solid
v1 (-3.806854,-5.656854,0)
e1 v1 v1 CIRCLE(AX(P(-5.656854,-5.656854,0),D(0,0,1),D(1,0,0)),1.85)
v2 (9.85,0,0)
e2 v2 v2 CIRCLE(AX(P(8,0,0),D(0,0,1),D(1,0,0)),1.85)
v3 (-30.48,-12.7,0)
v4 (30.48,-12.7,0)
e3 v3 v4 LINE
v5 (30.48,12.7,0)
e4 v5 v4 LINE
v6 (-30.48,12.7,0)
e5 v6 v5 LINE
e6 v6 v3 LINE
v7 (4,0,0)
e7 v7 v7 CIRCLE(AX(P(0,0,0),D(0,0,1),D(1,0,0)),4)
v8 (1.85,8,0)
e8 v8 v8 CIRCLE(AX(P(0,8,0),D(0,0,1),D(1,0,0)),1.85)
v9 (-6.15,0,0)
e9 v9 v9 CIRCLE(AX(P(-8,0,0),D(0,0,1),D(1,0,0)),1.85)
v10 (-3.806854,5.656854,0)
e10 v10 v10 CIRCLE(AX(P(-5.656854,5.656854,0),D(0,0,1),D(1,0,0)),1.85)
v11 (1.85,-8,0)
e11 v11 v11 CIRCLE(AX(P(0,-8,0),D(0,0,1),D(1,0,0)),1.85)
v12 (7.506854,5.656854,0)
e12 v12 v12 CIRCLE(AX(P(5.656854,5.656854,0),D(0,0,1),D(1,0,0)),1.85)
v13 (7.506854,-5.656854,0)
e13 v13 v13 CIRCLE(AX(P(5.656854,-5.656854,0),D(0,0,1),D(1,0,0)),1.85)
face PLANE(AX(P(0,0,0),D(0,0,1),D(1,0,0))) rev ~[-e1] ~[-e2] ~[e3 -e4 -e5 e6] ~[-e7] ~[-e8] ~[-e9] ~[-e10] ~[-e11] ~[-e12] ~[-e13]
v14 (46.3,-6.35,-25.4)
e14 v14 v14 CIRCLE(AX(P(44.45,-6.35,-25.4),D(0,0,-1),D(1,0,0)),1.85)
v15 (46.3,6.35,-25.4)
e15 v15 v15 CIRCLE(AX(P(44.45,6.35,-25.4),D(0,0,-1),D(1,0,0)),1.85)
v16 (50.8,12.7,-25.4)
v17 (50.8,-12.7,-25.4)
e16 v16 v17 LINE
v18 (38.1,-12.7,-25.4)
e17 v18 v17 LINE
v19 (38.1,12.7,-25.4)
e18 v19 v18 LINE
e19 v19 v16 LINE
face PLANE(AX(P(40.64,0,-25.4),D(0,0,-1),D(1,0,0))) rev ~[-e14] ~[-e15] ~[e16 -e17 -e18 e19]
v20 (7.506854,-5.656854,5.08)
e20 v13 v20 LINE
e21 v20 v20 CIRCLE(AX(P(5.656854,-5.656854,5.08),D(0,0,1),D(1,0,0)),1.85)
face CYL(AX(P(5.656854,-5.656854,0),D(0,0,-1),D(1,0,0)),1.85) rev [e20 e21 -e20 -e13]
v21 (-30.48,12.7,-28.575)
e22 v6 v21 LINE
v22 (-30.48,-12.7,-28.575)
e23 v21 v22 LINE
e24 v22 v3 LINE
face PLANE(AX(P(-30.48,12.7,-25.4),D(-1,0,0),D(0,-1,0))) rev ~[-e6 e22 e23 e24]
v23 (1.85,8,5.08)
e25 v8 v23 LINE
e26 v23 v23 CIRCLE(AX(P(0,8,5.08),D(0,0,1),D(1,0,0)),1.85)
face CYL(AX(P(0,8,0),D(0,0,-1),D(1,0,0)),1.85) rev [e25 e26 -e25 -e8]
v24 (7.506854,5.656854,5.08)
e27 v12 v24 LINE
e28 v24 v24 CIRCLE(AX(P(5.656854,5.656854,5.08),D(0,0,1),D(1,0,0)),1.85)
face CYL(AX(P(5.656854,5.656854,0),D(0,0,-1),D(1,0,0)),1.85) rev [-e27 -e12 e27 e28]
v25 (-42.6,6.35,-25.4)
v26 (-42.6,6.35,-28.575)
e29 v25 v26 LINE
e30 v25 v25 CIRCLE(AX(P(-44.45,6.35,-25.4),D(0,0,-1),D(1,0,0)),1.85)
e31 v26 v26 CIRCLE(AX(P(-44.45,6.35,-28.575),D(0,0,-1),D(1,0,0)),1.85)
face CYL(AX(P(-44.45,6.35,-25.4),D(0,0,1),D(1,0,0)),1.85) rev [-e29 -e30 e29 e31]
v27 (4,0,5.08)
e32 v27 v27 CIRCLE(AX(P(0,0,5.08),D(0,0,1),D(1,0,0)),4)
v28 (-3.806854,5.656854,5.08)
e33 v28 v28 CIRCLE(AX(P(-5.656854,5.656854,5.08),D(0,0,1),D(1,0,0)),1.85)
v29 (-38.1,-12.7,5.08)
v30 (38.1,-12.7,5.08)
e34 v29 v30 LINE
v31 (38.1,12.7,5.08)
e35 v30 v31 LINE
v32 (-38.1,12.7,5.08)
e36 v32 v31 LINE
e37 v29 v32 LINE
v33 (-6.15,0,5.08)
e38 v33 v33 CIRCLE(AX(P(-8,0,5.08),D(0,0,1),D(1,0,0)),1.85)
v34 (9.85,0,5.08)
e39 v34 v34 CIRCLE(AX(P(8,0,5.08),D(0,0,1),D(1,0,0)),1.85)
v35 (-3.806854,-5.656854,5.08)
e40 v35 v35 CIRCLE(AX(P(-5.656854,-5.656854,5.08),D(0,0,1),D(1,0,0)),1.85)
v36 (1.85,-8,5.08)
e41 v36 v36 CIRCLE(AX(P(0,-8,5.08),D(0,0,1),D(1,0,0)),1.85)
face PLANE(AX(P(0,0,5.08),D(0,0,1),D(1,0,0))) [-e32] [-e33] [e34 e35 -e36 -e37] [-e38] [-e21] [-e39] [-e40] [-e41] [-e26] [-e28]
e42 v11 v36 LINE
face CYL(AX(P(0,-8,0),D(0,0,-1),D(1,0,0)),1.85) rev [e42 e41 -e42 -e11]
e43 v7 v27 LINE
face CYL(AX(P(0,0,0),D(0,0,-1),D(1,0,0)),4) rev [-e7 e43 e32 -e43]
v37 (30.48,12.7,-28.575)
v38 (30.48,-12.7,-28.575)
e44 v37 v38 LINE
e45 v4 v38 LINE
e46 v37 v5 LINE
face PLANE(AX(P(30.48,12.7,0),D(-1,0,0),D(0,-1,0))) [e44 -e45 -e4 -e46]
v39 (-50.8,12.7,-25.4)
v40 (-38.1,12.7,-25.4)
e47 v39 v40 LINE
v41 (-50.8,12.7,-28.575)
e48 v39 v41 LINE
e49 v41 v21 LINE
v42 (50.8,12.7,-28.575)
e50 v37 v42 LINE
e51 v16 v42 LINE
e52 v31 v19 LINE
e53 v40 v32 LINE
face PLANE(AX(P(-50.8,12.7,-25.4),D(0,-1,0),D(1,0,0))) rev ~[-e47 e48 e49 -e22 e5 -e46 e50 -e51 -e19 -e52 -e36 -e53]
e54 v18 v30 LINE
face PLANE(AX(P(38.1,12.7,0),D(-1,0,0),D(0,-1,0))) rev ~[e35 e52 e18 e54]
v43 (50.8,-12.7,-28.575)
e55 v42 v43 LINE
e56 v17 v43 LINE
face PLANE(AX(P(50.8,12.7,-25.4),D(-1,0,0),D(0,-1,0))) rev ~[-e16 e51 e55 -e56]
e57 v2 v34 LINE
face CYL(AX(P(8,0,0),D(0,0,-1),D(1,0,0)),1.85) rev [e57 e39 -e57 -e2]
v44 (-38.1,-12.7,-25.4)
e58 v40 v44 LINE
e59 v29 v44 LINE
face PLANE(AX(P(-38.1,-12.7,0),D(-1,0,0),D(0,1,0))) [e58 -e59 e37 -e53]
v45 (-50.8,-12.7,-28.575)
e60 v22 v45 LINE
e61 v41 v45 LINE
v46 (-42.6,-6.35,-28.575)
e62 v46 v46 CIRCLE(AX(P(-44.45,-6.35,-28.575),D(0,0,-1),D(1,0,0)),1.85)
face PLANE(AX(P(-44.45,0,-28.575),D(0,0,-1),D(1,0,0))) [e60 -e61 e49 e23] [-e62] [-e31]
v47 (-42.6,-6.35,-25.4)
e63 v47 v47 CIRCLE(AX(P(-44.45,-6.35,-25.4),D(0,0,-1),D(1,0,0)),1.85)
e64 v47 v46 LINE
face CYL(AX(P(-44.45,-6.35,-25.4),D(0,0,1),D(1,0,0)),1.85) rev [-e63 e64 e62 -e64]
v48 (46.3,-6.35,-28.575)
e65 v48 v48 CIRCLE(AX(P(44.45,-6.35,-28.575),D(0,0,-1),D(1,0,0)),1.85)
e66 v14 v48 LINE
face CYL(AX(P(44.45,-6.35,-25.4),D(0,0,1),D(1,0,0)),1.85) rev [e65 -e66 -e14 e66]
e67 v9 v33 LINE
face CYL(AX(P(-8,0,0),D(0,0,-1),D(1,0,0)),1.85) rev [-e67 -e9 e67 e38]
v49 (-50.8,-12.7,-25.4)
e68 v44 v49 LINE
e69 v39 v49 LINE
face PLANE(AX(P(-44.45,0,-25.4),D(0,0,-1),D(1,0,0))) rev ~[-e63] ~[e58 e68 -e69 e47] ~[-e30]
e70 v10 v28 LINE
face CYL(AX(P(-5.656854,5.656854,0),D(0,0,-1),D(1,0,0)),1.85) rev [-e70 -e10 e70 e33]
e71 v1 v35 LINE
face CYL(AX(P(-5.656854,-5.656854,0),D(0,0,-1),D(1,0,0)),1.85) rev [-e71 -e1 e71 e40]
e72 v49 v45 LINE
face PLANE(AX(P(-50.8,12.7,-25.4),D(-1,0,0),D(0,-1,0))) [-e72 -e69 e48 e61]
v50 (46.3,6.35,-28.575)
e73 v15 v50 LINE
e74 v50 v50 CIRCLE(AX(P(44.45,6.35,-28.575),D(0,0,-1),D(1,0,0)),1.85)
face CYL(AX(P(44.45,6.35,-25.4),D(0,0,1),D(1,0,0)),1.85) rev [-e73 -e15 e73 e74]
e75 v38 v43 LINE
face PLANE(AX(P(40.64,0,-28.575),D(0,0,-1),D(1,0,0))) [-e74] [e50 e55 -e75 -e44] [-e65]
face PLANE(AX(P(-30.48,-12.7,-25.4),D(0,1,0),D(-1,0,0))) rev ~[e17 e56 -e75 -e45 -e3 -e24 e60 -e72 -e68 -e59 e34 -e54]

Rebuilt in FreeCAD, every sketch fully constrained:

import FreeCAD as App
import Part
import Sketcher

V = App.Vector
Q = App.Units.Quantity

doc = App.newDocument("Part")
params = doc.addObject("Spreadsheet::Sheet", "Params")
for row, (alias, value) in enumerate([
    ("sketch1_width", "3 in"),
    ("sketch1_height", "1 in"),
    ("pad1_length", "0.2 in"),
    ("sketch2_height", "1 in"),
    ("sketch2_width", "0.3 in"),
    ("pad2_length", "1 in"),
    ("sketch3_height", "1 in"),
    ("sketch3_width", "0.8 in"),
    ("pad3_length", "0.125 in"),
], start=1):
    params.set(f"A{row}", alias)
    params.set(f"B{row}", "=" + value)
    params.setAlias(f"B{row}", alias)

body = doc.addObject("PartDesign::Body", "Body")

sketch1 = doc.addObject("Sketcher::SketchObject", "Sketch")
body.addObject(sketch1)
sketch1.AttachmentSupport = (doc.XY_Plane, [""])
sketch1.MapMode = "FlatFace"
sketch1.addGeometry([
    Part.LineSegment(V(-38.1, 12.7, 0), V(-38.1, -12.7, 0)),
    Part.LineSegment(V(-38.1, -12.7, 0), V(38.1, -12.7, 0)),
    Part.LineSegment(V(38.1, -12.7, 0), V(38.1, 12.7, 0)),
    Part.LineSegment(V(38.1, 12.7, 0), V(-38.1, 12.7, 0)),
    Part.Circle(V(-5.7, -5.7, 0), V(0, 0, 1), 1.9),
    Part.Circle(V(0, -8, 0), V(0, 0, 1), 1.9),
    Part.Circle(V(5.7, -5.7, 0), V(0, 0, 1), 1.9),
    Part.Circle(V(-8, 0, 0), V(0, 0, 1), 1.9),
    Part.Circle(V(-5.7, 5.7, 0), V(0, 0, 1), 1.9),
    Part.Circle(V(0, 0, 0), V(0, 0, 1), 4),
    Part.Circle(V(8, 0, 0), V(0, 0, 1), 1.9),
    Part.Circle(V(0, 8, 0), V(0, 0, 1), 1.9),
    Part.Circle(V(5.7, 5.7, 0), V(0, 0, 1), 1.9),
], False)
sketch1.addConstraint([
    Sketcher.Constraint("Coincident", 0, 2, 1, 1),
    Sketcher.Constraint("Coincident", 1, 2, 2, 1),
    Sketcher.Constraint("Coincident", 2, 2, 3, 1),
    Sketcher.Constraint("Coincident", 3, 2, 0, 1),
    Sketcher.Constraint("Vertical", 0),
    Sketcher.Constraint("Horizontal", 1),
    Sketcher.Constraint("Vertical", 2),
    Sketcher.Constraint("Horizontal", 3),
    Sketcher.Constraint("Coincident", 9, 3, -1, 1),
    Sketcher.Constraint("Equal", 4, 5),
    Sketcher.Constraint("Equal", 5, 6),
    Sketcher.Constraint("Equal", 6, 7),
    Sketcher.Constraint("Equal", 7, 8),
    Sketcher.Constraint("Equal", 8, 10),
    Sketcher.Constraint("Equal", 10, 11),
    Sketcher.Constraint("Equal", 11, 12),
    Sketcher.Constraint("Symmetric", 6, 3, 8, 3, -1, 1),
    Sketcher.Constraint("Symmetric", 7, 3, 10, 3, -1, 1),
    Sketcher.Constraint("Symmetric", 5, 3, 11, 3, -1, 1),
    Sketcher.Constraint("Symmetric", 4, 3, 12, 3, -1, 1),
    Sketcher.Constraint("Symmetric", 0, 2, 2, 2, -1, 1),
    Sketcher.Constraint("Symmetric", 4, 3, 6, 3, -2),
    Sketcher.Constraint("PointOnObject", 5, 3, -2),
    Sketcher.Constraint("PointOnObject", 7, 3, -1),
    Sketcher.Constraint("DistanceX", 1, 1, 1, 2, Q("3 in")),
    Sketcher.Constraint("DistanceY", 0, 2, 0, 1, Q("1 in")),
    Sketcher.Constraint("Diameter", 4, Q("3.7 mm")),
    Sketcher.Constraint("Diameter", 9, Q("8 mm")),
    Sketcher.Constraint("DistanceY", 5, 3, -1, 1, Q("8 mm")),
    Sketcher.Constraint("DistanceX", 7, 3, -1, 1, Q("8 mm")),
    Sketcher.Constraint("DistanceX", 4, 3, -1, 1, Q("5.656854 mm")),
    Sketcher.Constraint("DistanceY", 4, 3, -1, 1, Q("5.656854 mm")),
])
sketch1.setExpression("Constraints[24]", "Params.sketch1_width")
sketch1.setExpression("Constraints[25]", "Params.sketch1_height")
pad1 = doc.addObject("PartDesign::Pad", "Pad")
body.addObject(pad1)
pad1.Profile = sketch1
pad1.setExpression("Length", "Params.pad1_length")

sketch2 = doc.addObject("Sketcher::SketchObject", "Sketch001")
body.addObject(sketch2)
sketch2.AttachmentSupport = (doc.XY_Plane, [""])
sketch2.MapMode = "FlatFace"
sketch2.addGeometry([
    Part.LineSegment(V(30, -13, 0), V(30, 13, 0)),
    Part.LineSegment(V(30, 13, 0), V(38, 13, 0)),
    Part.LineSegment(V(38, 13, 0), V(38, -13, 0)),
    Part.LineSegment(V(38, -13, 0), V(30, -13, 0)),
    Part.LineSegment(V(-38, -13, 0), V(-38, 13, 0)),
    Part.LineSegment(V(-38, 13, 0), V(-30, 13, 0)),
    Part.LineSegment(V(-30, 13, 0), V(-30, -13, 0)),
    Part.LineSegment(V(-30, -13, 0), V(-38, -13, 0)),
], False)
sketch2.addConstraint([
    Sketcher.Constraint("Coincident", 0, 2, 1, 1),
    Sketcher.Constraint("Coincident", 1, 2, 2, 1),
    Sketcher.Constraint("Coincident", 2, 2, 3, 1),
    Sketcher.Constraint("Coincident", 3, 2, 0, 1),
    Sketcher.Constraint("Coincident", 4, 2, 5, 1),
    Sketcher.Constraint("Coincident", 5, 2, 6, 1),
    Sketcher.Constraint("Coincident", 6, 2, 7, 1),
    Sketcher.Constraint("Coincident", 7, 2, 4, 1),
    Sketcher.Constraint("Vertical", 0),
    Sketcher.Constraint("Horizontal", 1),
    Sketcher.Constraint("Vertical", 2),
    Sketcher.Constraint("Horizontal", 3),
    Sketcher.Constraint("Vertical", 4),
    Sketcher.Constraint("Horizontal", 5),
    Sketcher.Constraint("Vertical", 6),
    Sketcher.Constraint("Horizontal", 7),
    Sketcher.Constraint("Symmetric", 2, 2, 4, 2, -1, 1),
    Sketcher.Constraint("Symmetric", 0, 2, 6, 2, -1, 1),
    Sketcher.Constraint("Horizontal", 1, 2, 4, 2),
    Sketcher.Constraint("DistanceY", 0, 1, 0, 2, Q("1 in")),
    Sketcher.Constraint("DistanceX", 1, 1, 1, 2, Q("0.3 in")),
    Sketcher.Constraint("DistanceX", 4, 2, 1, 2, Q("3 in")),
])
sketch2.setExpression("Constraints[19]", "Params.sketch2_height")
sketch2.setExpression("Constraints[20]", "Params.sketch2_width")
pad2 = doc.addObject("PartDesign::Pad", "Pad001")
body.addObject(pad2)
pad2.Profile = sketch2
pad2.setExpression("Length", "Params.pad2_length")
pad2.Reversed = True

sketch3 = doc.addObject("Sketcher::SketchObject", "Sketch002")
body.addObject(sketch3)
sketch3.AttachmentSupport = (doc.XY_Plane, [""])
sketch3.MapMode = "FlatFace"
sketch3.AttachmentOffset = App.Placement(V(0, 0, -1 * 25.4), App.Rotation())
sketch3.addGeometry([
    Part.LineSegment(V(-50.8, -12.7, 0), V(-50.8, 12.7, 0)),
    Part.LineSegment(V(-50.8, 12.7, 0), V(-30.5, 12.7, 0)),
    Part.LineSegment(V(-30.5, 12.7, 0), V(-30.5, -12.7, 0)),
    Part.LineSegment(V(-30.5, -12.7, 0), V(-50.8, -12.7, 0)),
    Part.Circle(V(-44.5, 6.3, 0), V(0, 0, 1), 1.9),
    Part.Circle(V(-44.5, -6.3, 0), V(0, 0, 1), 1.9),
    Part.LineSegment(V(30.5, -12.7, 0), V(30.5, 12.7, 0)),
    Part.LineSegment(V(30.5, 12.7, 0), V(50.8, 12.7, 0)),
    Part.LineSegment(V(50.8, 12.7, 0), V(50.8, -12.7, 0)),
    Part.LineSegment(V(50.8, -12.7, 0), V(30.5, -12.7, 0)),
    Part.Circle(V(44.5, 6.3, 0), V(0, 0, 1), 1.9),
    Part.Circle(V(44.5, -6.3, 0), V(0, 0, 1), 1.9),
], False)
sketch3.addConstraint([
    Sketcher.Constraint("Coincident", 0, 2, 1, 1),
    Sketcher.Constraint("Coincident", 1, 2, 2, 1),
    Sketcher.Constraint("Coincident", 2, 2, 3, 1),
    Sketcher.Constraint("Coincident", 3, 2, 0, 1),
    Sketcher.Constraint("Coincident", 6, 2, 7, 1),
    Sketcher.Constraint("Coincident", 7, 2, 8, 1),
    Sketcher.Constraint("Coincident", 8, 2, 9, 1),
    Sketcher.Constraint("Coincident", 9, 2, 6, 1),
    Sketcher.Constraint("Vertical", 0),
    Sketcher.Constraint("Horizontal", 1),
    Sketcher.Constraint("Vertical", 2),
    Sketcher.Constraint("Horizontal", 3),
    Sketcher.Constraint("Vertical", 6),
    Sketcher.Constraint("Horizontal", 7),
    Sketcher.Constraint("Vertical", 8),
    Sketcher.Constraint("Horizontal", 9),
    Sketcher.Constraint("Equal", 4, 5),
    Sketcher.Constraint("Equal", 5, 10),
    Sketcher.Constraint("Equal", 10, 11),
    Sketcher.Constraint("Symmetric", 5, 3, 10, 3, -1, 1),
    Sketcher.Constraint("Symmetric", 4, 3, 11, 3, -1, 1),
    Sketcher.Constraint("Symmetric", 2, 2, 6, 2, -1, 1),
    Sketcher.Constraint("Symmetric", 0, 2, 8, 2, -1, 1),
    Sketcher.Constraint("Symmetric", 4, 3, 10, 3, -2),
    Sketcher.Constraint("Horizontal", 1, 2, 6, 2),
    Sketcher.Constraint("DistanceY", 0, 1, 0, 2, Q("1 in")),
    Sketcher.Constraint("DistanceX", 1, 1, 1, 2, Q("0.8 in")),
    Sketcher.Constraint("DistanceX", 0, 2, -1, 1, Q("2 in")),
    Sketcher.Constraint("DistanceY", 5, 3, 4, 3, Q("0.5 in")),
    Sketcher.Constraint("DistanceX", 4, 3, 10, 3, Q("3.5 in")),
    Sketcher.Constraint("Diameter", 4, Q("3.7 mm")),
])
sketch3.setExpression("Constraints[25]", "Params.sketch3_height")
sketch3.setExpression("Constraints[26]", "Params.sketch3_width")
pad3 = doc.addObject("PartDesign::Pad", "Pad002")
body.addObject(pad3)
pad3.Profile = sketch3
pad3.setExpression("Length", "Params.pad3_length")
pad3.Reversed = True

doc.recompute()
